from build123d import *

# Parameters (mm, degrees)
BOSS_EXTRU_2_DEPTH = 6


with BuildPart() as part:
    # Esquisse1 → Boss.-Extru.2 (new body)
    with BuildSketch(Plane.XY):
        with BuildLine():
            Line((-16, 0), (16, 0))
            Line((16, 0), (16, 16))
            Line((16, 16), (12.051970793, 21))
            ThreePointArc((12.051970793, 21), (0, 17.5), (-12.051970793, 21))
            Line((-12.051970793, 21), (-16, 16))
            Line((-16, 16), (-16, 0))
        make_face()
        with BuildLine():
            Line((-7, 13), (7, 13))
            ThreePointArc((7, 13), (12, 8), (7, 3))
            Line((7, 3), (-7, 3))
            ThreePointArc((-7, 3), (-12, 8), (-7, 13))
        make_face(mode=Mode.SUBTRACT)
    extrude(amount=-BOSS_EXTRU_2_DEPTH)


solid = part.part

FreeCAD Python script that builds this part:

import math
import FreeCAD as App
import Part
import Sketcher
Q = App.Units.Quantity

doc = App.newDocument("Part")
body = doc.addObject("PartDesign::Body", "Body")

# Sketch on XY plane
sketch1 = body.newObject("Sketcher::SketchObject", "Sketch")
sketch1.AttachmentSupport = (doc.getObject("XY_Plane"), [""])
sketch1.MapMode = "FlatFace"
sketch1.addGeometry([
    Part.LineSegment(App.Vector(-16, 0, 0), App.Vector(16, 0, 0)),  # 0
    Part.LineSegment(App.Vector(16, 0, 0), App.Vector(16, 16, 0)),  # 1
    Part.LineSegment(App.Vector(16, 16, 0), App.Vector(12, 21, 0)),  # 2
    Part.ArcOfCircle(Part.Circle(App.Vector(0, 40, 0), App.Vector(0, 0, 1), 22), math.radians(-122), math.radians(-58)),  # 3
    Part.LineSegment(App.Vector(-12, 21, 0), App.Vector(-16, 16, 0)),  # 4
    Part.LineSegment(App.Vector(-16, 16, 0), App.Vector(-16, 0, 0)),  # 5
    Part.ArcOfCircle(Part.Circle(App.Vector(-7, 8, 0), App.Vector(0, 0, 1), 5), math.radians(90), math.radians(270)),  # 6
    Part.LineSegment(App.Vector(-7, 13, 0), App.Vector(7, 13, 0)),  # 7
    Part.ArcOfCircle(Part.Circle(App.Vector(7, 8, 0), App.Vector(0, 0, 1), 5), math.radians(-90), math.radians(90)),  # 8
    Part.LineSegment(App.Vector(7, 3, 0), App.Vector(-7, 3, 0)),  # 9
], False)
sketch1.addConstraint([
    Sketcher.Constraint("Coincident", 0, 2, 1, 1),
    Sketcher.Constraint("Coincident", 1, 2, 2, 1),
    Sketcher.Constraint("Coincident", 2, 2, 3, 2),
    Sketcher.Constraint("Coincident", 3, 1, 4, 1),
    Sketcher.Constraint("Coincident", 4, 2, 5, 1),
    Sketcher.Constraint("Coincident", 5, 2, 0, 1),
    Sketcher.Constraint("Tangent", 6, 1, 7, 1),
    Sketcher.Constraint("Tangent", 7, 2, 8, 2),
    Sketcher.Constraint("Tangent", 8, 1, 9, 1),
    Sketcher.Constraint("Tangent", 9, 2, 6, 2),
    Sketcher.Constraint("Horizontal", 0),
    Sketcher.Constraint("Vertical", 1),
    Sketcher.Constraint("Vertical", 5),
    Sketcher.Constraint("Horizontal", 7),
    Sketcher.Constraint("Horizontal", 9),
    Sketcher.Constraint("Symmetric", 0, 2, 5, 2, -1, 1),
    Sketcher.Constraint("Symmetric", 2, 2, 3, 1, -2),
    Sketcher.Constraint("Horizontal", 1, 2, 4, 2),
    Sketcher.Constraint("Radius", 6, Q("5 mm")),
    Sketcher.Constraint("Radius", 3, Q("22.5 mm")),
    Sketcher.Constraint("DistanceX", 0, 1, 0, 2, Q("32 mm")),
    Sketcher.Constraint("DistanceX", 7, 1, 7, 2, Q("14 mm")),
    Sketcher.Constraint("DistanceY", 1, 1, 1, 2, Q("16 mm")),
    Sketcher.Constraint("DistanceY", -1, 1, 3, 3, Q("40 mm")),
    Sketcher.Constraint("DistanceX", 6, 3, -1, 1, Q("7 mm")),
    Sketcher.Constraint("DistanceY", -1, 1, 6, 3, Q("8 mm")),
    Sketcher.Constraint("DistanceY", -1, 1, 2, 2, Q("21 mm")),
])
pad1 = body.newObject("PartDesign::Pad", "Pad")
pad1.Profile = sketch1
pad1.Length = 6
pad1.Reversed = True

doc.recompute()
